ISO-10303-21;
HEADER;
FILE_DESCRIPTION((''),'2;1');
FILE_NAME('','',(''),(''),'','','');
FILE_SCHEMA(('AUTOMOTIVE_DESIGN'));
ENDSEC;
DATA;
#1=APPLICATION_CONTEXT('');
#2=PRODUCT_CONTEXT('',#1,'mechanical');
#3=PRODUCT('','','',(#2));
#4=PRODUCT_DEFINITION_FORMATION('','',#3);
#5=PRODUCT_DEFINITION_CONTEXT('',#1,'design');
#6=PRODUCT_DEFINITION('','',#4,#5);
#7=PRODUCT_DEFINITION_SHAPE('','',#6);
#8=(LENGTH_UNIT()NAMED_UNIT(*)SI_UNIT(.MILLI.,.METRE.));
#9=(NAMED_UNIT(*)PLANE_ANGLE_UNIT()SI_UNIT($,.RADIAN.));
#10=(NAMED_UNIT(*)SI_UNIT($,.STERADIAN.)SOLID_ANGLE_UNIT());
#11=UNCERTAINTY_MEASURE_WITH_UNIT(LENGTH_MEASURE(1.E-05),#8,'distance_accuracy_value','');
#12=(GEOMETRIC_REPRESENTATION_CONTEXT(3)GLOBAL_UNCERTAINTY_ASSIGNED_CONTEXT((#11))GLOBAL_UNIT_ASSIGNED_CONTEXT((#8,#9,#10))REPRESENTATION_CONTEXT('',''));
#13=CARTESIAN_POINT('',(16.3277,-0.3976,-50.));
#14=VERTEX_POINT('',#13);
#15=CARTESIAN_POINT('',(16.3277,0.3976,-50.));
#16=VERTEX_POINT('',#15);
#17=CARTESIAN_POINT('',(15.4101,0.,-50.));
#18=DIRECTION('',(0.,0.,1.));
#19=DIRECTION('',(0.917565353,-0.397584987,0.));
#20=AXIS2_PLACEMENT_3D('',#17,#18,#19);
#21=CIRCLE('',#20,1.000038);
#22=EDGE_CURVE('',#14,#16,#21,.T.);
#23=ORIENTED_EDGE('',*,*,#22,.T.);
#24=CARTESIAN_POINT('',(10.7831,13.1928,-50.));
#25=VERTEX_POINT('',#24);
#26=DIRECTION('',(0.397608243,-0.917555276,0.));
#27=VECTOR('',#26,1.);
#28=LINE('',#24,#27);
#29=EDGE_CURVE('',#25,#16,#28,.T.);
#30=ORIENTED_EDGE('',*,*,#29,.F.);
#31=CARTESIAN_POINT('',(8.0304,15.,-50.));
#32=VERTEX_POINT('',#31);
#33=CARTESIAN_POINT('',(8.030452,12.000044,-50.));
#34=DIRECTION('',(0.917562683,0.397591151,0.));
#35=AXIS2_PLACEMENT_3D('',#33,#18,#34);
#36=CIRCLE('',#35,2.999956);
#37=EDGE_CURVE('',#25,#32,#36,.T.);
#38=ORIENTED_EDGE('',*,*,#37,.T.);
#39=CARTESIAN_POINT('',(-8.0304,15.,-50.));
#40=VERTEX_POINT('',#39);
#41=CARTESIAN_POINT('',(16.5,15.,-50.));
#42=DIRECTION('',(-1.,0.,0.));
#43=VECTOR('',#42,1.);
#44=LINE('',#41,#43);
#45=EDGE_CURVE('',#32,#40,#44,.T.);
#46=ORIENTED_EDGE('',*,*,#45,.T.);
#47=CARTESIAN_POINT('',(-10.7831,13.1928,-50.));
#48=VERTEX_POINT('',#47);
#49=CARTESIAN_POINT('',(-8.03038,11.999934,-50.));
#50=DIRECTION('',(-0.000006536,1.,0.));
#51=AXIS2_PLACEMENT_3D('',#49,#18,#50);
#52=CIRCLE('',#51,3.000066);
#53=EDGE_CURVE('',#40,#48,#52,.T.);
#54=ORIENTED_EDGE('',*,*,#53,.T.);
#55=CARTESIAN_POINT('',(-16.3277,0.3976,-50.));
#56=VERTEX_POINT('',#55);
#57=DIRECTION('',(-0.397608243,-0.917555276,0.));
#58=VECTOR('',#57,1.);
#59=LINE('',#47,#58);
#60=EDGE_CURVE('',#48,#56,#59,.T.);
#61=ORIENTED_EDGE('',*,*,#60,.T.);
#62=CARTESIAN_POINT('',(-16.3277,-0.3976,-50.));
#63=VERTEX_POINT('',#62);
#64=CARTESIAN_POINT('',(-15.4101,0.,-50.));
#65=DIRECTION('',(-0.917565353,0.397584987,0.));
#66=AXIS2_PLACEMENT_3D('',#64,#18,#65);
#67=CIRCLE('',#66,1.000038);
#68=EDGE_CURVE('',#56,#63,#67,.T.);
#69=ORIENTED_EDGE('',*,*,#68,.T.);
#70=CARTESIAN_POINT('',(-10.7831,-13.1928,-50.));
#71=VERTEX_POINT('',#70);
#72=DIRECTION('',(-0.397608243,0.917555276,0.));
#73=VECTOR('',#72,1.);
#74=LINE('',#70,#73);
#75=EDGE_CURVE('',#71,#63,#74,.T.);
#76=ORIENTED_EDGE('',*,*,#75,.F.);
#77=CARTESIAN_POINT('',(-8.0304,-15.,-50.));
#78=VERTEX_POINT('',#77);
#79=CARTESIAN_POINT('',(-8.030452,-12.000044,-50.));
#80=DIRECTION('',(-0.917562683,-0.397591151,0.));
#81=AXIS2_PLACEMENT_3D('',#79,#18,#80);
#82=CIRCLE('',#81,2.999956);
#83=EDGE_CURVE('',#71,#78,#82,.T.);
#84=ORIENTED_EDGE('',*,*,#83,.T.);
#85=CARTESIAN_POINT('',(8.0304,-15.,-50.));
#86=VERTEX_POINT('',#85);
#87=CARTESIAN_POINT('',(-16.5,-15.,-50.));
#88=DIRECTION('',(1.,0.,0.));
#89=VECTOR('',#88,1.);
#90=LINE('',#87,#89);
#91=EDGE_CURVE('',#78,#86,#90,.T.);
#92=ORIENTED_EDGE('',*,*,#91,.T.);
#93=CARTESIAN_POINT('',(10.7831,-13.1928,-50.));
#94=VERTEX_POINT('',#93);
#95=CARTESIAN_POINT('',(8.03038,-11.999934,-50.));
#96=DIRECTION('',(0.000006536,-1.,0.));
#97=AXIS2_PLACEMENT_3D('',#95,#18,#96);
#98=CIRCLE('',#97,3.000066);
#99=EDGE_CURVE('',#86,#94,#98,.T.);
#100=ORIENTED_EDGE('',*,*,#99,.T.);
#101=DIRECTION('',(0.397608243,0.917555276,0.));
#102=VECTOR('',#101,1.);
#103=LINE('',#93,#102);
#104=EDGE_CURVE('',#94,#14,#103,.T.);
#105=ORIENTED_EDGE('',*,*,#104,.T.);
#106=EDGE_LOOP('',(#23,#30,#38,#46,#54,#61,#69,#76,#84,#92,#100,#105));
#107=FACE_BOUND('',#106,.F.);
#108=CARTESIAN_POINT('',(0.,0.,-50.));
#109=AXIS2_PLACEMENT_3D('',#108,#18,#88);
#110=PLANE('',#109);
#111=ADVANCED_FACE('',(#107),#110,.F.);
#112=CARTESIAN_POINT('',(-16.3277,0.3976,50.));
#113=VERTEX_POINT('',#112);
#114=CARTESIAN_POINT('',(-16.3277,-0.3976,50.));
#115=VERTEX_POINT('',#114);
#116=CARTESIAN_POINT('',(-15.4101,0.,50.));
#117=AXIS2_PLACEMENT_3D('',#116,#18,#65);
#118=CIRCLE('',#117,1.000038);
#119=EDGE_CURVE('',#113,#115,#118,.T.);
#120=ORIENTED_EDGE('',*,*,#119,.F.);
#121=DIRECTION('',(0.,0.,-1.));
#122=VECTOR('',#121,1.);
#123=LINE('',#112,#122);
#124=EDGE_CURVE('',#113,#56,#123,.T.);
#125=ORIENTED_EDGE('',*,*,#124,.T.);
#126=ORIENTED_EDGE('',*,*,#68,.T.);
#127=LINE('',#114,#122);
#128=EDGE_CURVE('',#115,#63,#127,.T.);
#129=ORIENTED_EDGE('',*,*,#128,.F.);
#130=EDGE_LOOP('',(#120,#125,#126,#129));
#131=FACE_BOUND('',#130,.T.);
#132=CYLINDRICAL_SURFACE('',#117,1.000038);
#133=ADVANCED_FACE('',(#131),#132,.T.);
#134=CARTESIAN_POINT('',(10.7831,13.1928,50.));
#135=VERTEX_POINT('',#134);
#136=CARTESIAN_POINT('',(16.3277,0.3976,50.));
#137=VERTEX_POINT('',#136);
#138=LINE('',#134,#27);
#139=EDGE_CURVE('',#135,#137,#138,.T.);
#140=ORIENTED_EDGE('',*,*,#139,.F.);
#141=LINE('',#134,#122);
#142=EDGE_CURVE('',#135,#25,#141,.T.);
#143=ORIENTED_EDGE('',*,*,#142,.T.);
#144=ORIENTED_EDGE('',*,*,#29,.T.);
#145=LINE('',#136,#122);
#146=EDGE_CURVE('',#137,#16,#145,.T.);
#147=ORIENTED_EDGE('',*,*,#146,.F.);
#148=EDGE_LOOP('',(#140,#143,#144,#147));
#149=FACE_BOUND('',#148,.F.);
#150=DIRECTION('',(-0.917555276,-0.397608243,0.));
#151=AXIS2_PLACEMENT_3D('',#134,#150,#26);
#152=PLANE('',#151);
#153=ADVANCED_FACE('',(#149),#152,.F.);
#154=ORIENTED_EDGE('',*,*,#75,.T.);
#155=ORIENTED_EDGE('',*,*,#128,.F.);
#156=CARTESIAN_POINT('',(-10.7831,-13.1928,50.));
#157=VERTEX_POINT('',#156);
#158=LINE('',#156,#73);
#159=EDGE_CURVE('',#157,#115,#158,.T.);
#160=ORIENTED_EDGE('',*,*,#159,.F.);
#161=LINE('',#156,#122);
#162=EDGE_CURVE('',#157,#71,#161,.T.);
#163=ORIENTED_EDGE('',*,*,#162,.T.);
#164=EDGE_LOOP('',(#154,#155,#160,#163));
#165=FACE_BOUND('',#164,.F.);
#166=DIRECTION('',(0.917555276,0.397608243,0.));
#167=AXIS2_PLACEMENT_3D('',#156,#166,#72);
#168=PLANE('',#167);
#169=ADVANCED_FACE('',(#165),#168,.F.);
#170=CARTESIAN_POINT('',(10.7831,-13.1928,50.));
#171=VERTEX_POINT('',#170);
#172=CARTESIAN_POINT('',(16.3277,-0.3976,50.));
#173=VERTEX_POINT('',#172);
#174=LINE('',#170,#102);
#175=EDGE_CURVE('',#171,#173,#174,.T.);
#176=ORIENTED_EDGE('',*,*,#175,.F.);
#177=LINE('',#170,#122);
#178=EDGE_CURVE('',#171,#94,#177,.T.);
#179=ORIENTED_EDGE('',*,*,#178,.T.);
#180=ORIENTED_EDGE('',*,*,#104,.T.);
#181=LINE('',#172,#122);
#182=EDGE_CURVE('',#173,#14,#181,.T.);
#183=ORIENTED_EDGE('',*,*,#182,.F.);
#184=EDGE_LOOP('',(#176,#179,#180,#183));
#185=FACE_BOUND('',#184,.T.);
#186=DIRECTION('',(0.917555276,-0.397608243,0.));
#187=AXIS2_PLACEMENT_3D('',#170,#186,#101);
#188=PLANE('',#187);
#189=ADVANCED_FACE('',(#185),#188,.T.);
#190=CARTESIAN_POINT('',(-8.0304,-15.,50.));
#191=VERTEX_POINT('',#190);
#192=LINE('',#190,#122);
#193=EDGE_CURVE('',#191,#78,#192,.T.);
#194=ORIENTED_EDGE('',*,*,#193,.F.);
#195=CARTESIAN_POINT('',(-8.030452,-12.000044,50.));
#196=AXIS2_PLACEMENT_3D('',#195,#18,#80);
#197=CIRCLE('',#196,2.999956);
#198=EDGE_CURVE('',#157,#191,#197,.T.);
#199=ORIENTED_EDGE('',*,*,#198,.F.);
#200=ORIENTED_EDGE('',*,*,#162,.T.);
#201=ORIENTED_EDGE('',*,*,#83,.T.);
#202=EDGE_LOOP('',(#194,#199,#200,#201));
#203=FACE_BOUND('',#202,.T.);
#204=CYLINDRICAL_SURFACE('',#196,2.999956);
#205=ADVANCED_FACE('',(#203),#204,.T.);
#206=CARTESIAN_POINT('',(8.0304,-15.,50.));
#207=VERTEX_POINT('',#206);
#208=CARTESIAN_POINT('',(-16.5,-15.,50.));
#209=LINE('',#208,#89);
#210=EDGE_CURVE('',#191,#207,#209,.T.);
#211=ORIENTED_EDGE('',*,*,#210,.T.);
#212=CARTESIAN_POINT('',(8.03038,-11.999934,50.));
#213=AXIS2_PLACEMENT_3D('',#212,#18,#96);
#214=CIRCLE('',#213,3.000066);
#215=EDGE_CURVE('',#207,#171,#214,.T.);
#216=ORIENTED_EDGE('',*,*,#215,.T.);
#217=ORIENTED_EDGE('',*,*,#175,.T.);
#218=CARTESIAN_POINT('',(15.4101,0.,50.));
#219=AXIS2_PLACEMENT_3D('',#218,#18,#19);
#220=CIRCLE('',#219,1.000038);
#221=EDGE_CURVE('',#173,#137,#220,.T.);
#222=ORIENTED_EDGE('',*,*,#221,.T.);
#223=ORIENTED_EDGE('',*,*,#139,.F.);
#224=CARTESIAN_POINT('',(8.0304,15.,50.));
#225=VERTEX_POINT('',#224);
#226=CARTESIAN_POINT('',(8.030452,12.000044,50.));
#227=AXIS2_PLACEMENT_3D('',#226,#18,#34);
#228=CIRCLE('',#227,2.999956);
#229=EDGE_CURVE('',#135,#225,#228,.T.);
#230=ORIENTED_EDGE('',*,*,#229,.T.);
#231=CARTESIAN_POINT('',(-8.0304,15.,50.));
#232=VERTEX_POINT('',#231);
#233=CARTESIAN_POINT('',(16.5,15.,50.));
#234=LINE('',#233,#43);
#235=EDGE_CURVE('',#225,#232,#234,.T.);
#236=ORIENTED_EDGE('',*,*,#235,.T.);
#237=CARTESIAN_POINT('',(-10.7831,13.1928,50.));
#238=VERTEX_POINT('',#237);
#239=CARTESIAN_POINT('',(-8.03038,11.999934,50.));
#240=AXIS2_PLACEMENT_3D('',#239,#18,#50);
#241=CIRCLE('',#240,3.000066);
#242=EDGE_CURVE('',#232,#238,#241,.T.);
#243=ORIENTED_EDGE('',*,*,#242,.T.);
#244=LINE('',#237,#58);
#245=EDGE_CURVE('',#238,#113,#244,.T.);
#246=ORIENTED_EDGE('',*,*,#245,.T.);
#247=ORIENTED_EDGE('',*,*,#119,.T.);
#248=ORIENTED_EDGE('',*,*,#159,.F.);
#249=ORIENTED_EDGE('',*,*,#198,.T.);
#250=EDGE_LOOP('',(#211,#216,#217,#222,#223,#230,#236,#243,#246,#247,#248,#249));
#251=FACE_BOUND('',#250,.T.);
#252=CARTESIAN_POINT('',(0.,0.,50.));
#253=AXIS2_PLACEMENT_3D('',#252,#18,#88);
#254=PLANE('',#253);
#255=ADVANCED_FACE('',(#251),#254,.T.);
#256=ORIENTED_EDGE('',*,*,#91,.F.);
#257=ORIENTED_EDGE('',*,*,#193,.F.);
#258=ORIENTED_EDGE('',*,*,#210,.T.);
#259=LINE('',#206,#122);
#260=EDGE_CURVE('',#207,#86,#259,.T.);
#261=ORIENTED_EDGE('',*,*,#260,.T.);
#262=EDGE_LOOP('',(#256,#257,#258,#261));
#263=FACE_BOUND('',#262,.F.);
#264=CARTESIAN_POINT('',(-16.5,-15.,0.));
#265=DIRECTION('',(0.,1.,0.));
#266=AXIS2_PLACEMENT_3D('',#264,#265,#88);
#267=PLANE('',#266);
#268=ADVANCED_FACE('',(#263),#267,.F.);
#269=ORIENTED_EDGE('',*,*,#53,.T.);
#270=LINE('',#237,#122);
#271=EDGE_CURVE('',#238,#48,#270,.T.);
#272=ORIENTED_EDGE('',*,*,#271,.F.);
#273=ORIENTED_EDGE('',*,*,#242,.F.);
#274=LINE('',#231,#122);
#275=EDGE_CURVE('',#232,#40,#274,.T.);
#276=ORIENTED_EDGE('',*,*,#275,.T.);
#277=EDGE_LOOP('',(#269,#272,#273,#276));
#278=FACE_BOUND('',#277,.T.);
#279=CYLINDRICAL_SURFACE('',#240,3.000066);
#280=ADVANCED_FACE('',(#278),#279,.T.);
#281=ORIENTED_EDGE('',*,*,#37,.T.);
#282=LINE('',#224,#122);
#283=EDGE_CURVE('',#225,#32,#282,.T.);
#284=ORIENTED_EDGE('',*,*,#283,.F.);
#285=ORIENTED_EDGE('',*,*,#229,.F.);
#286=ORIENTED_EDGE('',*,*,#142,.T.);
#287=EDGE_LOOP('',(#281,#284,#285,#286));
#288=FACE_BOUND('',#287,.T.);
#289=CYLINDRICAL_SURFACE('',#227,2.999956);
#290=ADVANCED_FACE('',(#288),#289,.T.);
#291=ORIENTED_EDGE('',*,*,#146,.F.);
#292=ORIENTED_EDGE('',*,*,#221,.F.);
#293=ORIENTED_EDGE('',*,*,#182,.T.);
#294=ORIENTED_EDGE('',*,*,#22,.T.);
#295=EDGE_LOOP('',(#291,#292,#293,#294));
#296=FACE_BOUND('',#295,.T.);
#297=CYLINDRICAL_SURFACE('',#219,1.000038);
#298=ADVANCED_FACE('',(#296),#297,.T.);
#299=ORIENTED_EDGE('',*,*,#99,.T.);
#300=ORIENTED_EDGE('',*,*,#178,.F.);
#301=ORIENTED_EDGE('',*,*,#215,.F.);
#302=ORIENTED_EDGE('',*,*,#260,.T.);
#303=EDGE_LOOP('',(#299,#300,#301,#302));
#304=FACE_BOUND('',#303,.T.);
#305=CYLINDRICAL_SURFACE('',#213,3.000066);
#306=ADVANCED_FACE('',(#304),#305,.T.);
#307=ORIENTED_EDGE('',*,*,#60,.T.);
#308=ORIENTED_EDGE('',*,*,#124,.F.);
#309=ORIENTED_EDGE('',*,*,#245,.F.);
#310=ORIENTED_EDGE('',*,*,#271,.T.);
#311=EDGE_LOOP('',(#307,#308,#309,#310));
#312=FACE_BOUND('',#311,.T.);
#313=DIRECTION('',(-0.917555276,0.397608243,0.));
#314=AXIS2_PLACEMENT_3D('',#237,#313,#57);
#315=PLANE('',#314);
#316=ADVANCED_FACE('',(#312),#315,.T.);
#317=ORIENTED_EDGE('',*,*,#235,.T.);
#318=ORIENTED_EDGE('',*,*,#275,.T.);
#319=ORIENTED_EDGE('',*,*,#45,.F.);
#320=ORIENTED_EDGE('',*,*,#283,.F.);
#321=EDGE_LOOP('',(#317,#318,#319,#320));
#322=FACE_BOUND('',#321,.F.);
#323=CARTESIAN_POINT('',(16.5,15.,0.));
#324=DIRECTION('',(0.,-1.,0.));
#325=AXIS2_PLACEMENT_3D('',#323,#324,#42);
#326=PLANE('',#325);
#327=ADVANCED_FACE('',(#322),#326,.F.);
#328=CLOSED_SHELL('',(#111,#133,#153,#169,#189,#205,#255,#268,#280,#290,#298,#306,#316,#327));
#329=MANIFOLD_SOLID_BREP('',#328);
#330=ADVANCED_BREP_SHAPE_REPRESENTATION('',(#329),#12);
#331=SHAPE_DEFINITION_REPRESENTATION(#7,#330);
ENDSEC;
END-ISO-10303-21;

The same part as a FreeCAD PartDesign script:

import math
import FreeCAD as App
import Part
import Sketcher
from FreeCAD import Vector
Q = App.Units.Quantity


def add_polygon(sketch, points):
    """Adds a closed chain of lines whose ends are joined by coincident constraints."""
    first, n = sketch.GeometryCount, len(points)
    for a, b in zip(points, points[1:] + points[:1]):
        sketch.addGeometry(Part.LineSegment(App.Vector(*a, 0), App.Vector(*b, 0)), False)
    for i in range(n):
        sketch.addConstraint(Sketcher.Constraint("Coincident", first + i, 2, first + (i + 1) % n, 1))

doc = App.newDocument("Part")
body = doc.addObject("PartDesign::Body", "Body")

# Sketch on XY plane
sketch1 = body.newObject("Sketcher::SketchObject", "Sketch")
sketch1.AttachmentSupport = (doc.getObject("XY_Plane"), [""])
sketch1.MapMode = "FlatFace"
add_polygon(sketch1, [(-16.5, 15), (-16.5, -15), (16.5, -15), (16.5, 15)])  # lines 0-3
sketch1.addConstraint(Sketcher.Constraint("Vertical", 0))
sketch1.addConstraint(Sketcher.Constraint("Horizontal", 1))
sketch1.addConstraint(Sketcher.Constraint("Vertical", 2))
sketch1.addConstraint(Sketcher.Constraint("Horizontal", 3))
sketch1.addConstraint(Sketcher.Constraint("Symmetric", 0, 2, 2, 2, -1, 1))
sketch1.addConstraint(Sketcher.Constraint("DistanceX", 1, 1, 1, 2, Q("33 mm")))
sketch1.addConstraint(Sketcher.Constraint("DistanceY", 0, 2, 0, 1, Q("30 mm")))
pad1 = body.newObject("PartDesign::Pad", "Pad")
pad1.Profile = sketch1
pad1.Length = 100
pad1.Midplane = True

# Sketch on XY plane
sketch2 = body.newObject("Sketcher::SketchObject", "Sketch001")
sketch2.AttachmentSupport = (doc.getObject("XY_Plane"), [""])
sketch2.MapMode = "FlatFace"
sketch2.AttachmentOffset = App.Placement(Vector(0, 0, 50), App.Rotation())
sketch2.addGeometry(Part.ArcOfCircle(Part.Circle(Vector(8.0304, 12, 0), Vector(0, 0, 1), 3.000022), math.radians(23.42805), math.radians(90)), False)
sketch2.addGeometry(Part.LineSegment(Vector(10.7831, 13.1928, 0), Vector(16.3277, 0.3976, 0)), False)
sketch2.addGeometry(Part.ArcOfCircle(Part.Circle(Vector(15.4101, 0, 0), Vector(0, 0, 1), 1.000038), math.radians(-23.427291), math.radians(23.427291)), False)
sketch2.addGeometry(Part.LineSegment(Vector(16.3277, -0.3976, 0), Vector(10.7831, -13.1928, 0)), False)
sketch2.addGeometry(Part.ArcOfCircle(Part.Circle(Vector(8.0304, -12, 0), Vector(0, 0, 1), 3), math.radians(-90), math.radians(-23.42805)), False)
sketch2.addGeometry(Part.LineSegment(Vector(8.0304, -15, 0), Vector(16.5, -15, 0)), False)
sketch2.addGeometry(Part.LineSegment(Vector(16.5, -15, 0), Vector(16.5, 15, 0)), False)
sketch2.addGeometry(Part.LineSegment(Vector(16.5, 15, 0), Vector(8.0304, 15, 0)), False)
sketch2.addGeometry(Part.LineSegment(Vector(-16.3277, 0.3976, 0), Vector(-10.7831, 13.1928, 0)), False)
sketch2.addGeometry(Part.ArcOfCircle(Part.Circle(Vector(-8.0304, 12, 0), Vector(0, 0, 1), 3), math.radians(90), math.radians(156.57195)), False)
sketch2.addGeometry(Part.LineSegment(Vector(-8.0304, 15, 0), Vector(-16.5, 15, 0)), False)
sketch2.addGeometry(Part.LineSegment(Vector(-16.5, 15, 0), Vector(-16.5, -15, 0)), False)
sketch2.addGeometry(Part.LineSegment(Vector(-16.5, -15, 0), Vector(-8.0304, -15, 0)), False)
sketch2.addGeometry(Part.ArcOfCircle(Part.Circle(Vector(-8.0304, -12, 0), Vector(0, 0, 1), 3.000022), math.radians(-156.57195), math.radians(-90)), False)
sketch2.addGeometry(Part.LineSegment(Vector(-10.7831, -13.1928, 0), Vector(-16.3277, -0.3976, 0)), False)
sketch2.addGeometry(Part.ArcOfCircle(Part.Circle(Vector(-15.4101, 0, 0), Vector(0, 0, 1), 1.000038), math.radians(156.572709), math.radians(203.427291)), False)
sketch2.addConstraint(Sketcher.Constraint("Tangent", 0, 1, 1, 1))
sketch2.addConstraint(Sketcher.Constraint("Tangent", 1, 2, 2, 2))
sketch2.addConstraint(Sketcher.Constraint("Tangent", 2, 1, 3, 1))
sketch2.addConstraint(Sketcher.Constraint("Tangent", 3, 2, 4, 2))
sketch2.addConstraint(Sketcher.Constraint("Tangent", 4, 1, 5, 1))
sketch2.addConstraint(Sketcher.Constraint("Coincident", 5, 2, 6, 1))
sketch2.addConstraint(Sketcher.Constraint("Coincident", 6, 2, 7, 1))
sketch2.addConstraint(Sketcher.Constraint("Tangent", 7, 2, 0, 2))
sketch2.addConstraint(Sketcher.Constraint("Tangent", 8, 2, 9, 2))
sketch2.addConstraint(Sketcher.Constraint("Tangent", 9, 1, 10, 1))
sketch2.addConstraint(Sketcher.Constraint("Coincident", 10, 2, 11, 1))
sketch2.addConstraint(Sketcher.Constraint("Coincident", 11, 2, 12, 1))
sketch2.addConstraint(Sketcher.Constraint("Tangent", 12, 2, 13, 2))
sketch2.addConstraint(Sketcher.Constraint("Tangent", 13, 1, 14, 1))
sketch2.addConstraint(Sketcher.Constraint("Tangent", 14, 2, 15, 2))
sketch2.addConstraint(Sketcher.Constraint("Tangent", 15, 1, 8, 1))
sketch2.addConstraint(Sketcher.Constraint("Horizontal", 5))
sketch2.addConstraint(Sketcher.Constraint("Vertical", 6))
sketch2.addConstraint(Sketcher.Constraint("Horizontal", 7))
sketch2.addConstraint(Sketcher.Constraint("Horizontal", 10))
sketch2.addConstraint(Sketcher.Constraint("Vertical", 11))
sketch2.addConstraint(Sketcher.Constraint("Horizontal", 12))
sketch2.addConstraint(Sketcher.Constraint("Equal", 0, 4))
sketch2.addConstraint(Sketcher.Constraint("Equal", 4, 9))
sketch2.addConstraint(Sketcher.Constraint("Equal", 9, 13))
sketch2.addConstraint(Sketcher.Constraint("Equal", 2, 15))
sketch2.addConstraint(Sketcher.Constraint("Symmetric", 4, 3, 9, 3, -1, 1))
sketch2.addConstraint(Sketcher.Constraint("Symmetric", 0, 3, 13, 3, -1, 1))
sketch2.addConstraint(Sketcher.Constraint("Symmetric", 2, 3, 15, 3, -1, 1))
sketch2.addConstraint(Sketcher.Constraint("Symmetric", 0, 3, 9, 3, -2))
sketch2.addConstraint(Sketcher.Constraint("PointOnObject", 2, 3, -1))
sketch2.addConstraint(Sketcher.Constraint("Equal", 7, 10))
sketch2.addConstraint(Sketcher.Constraint("Radius", 0, Q("3 mm")))
sketch2.addConstraint(Sketcher.Constraint("Radius", 2, Q("1 mm")))
sketch2.addConstraint(Sketcher.Constraint("DistanceY", 6, 1, 6, 2, Q("30 mm")))
sketch2.addConstraint(Sketcher.Constraint("DistanceX", -1, 1, 5, 2, Q("16.5 mm")))
sketch2.addConstraint(Sketcher.Constraint("DistanceX", -1, 1, 2, 3, Q("15.41 mm")))
sketch2.addConstraint(Sketcher.Constraint("Distance", 1, Q("13.945 mm")))
pocket1 = body.newObject("PartDesign::Pocket", "Pocket")
pocket1.Profile = sketch2
pocket1.Length = 100

doc.recompute()
